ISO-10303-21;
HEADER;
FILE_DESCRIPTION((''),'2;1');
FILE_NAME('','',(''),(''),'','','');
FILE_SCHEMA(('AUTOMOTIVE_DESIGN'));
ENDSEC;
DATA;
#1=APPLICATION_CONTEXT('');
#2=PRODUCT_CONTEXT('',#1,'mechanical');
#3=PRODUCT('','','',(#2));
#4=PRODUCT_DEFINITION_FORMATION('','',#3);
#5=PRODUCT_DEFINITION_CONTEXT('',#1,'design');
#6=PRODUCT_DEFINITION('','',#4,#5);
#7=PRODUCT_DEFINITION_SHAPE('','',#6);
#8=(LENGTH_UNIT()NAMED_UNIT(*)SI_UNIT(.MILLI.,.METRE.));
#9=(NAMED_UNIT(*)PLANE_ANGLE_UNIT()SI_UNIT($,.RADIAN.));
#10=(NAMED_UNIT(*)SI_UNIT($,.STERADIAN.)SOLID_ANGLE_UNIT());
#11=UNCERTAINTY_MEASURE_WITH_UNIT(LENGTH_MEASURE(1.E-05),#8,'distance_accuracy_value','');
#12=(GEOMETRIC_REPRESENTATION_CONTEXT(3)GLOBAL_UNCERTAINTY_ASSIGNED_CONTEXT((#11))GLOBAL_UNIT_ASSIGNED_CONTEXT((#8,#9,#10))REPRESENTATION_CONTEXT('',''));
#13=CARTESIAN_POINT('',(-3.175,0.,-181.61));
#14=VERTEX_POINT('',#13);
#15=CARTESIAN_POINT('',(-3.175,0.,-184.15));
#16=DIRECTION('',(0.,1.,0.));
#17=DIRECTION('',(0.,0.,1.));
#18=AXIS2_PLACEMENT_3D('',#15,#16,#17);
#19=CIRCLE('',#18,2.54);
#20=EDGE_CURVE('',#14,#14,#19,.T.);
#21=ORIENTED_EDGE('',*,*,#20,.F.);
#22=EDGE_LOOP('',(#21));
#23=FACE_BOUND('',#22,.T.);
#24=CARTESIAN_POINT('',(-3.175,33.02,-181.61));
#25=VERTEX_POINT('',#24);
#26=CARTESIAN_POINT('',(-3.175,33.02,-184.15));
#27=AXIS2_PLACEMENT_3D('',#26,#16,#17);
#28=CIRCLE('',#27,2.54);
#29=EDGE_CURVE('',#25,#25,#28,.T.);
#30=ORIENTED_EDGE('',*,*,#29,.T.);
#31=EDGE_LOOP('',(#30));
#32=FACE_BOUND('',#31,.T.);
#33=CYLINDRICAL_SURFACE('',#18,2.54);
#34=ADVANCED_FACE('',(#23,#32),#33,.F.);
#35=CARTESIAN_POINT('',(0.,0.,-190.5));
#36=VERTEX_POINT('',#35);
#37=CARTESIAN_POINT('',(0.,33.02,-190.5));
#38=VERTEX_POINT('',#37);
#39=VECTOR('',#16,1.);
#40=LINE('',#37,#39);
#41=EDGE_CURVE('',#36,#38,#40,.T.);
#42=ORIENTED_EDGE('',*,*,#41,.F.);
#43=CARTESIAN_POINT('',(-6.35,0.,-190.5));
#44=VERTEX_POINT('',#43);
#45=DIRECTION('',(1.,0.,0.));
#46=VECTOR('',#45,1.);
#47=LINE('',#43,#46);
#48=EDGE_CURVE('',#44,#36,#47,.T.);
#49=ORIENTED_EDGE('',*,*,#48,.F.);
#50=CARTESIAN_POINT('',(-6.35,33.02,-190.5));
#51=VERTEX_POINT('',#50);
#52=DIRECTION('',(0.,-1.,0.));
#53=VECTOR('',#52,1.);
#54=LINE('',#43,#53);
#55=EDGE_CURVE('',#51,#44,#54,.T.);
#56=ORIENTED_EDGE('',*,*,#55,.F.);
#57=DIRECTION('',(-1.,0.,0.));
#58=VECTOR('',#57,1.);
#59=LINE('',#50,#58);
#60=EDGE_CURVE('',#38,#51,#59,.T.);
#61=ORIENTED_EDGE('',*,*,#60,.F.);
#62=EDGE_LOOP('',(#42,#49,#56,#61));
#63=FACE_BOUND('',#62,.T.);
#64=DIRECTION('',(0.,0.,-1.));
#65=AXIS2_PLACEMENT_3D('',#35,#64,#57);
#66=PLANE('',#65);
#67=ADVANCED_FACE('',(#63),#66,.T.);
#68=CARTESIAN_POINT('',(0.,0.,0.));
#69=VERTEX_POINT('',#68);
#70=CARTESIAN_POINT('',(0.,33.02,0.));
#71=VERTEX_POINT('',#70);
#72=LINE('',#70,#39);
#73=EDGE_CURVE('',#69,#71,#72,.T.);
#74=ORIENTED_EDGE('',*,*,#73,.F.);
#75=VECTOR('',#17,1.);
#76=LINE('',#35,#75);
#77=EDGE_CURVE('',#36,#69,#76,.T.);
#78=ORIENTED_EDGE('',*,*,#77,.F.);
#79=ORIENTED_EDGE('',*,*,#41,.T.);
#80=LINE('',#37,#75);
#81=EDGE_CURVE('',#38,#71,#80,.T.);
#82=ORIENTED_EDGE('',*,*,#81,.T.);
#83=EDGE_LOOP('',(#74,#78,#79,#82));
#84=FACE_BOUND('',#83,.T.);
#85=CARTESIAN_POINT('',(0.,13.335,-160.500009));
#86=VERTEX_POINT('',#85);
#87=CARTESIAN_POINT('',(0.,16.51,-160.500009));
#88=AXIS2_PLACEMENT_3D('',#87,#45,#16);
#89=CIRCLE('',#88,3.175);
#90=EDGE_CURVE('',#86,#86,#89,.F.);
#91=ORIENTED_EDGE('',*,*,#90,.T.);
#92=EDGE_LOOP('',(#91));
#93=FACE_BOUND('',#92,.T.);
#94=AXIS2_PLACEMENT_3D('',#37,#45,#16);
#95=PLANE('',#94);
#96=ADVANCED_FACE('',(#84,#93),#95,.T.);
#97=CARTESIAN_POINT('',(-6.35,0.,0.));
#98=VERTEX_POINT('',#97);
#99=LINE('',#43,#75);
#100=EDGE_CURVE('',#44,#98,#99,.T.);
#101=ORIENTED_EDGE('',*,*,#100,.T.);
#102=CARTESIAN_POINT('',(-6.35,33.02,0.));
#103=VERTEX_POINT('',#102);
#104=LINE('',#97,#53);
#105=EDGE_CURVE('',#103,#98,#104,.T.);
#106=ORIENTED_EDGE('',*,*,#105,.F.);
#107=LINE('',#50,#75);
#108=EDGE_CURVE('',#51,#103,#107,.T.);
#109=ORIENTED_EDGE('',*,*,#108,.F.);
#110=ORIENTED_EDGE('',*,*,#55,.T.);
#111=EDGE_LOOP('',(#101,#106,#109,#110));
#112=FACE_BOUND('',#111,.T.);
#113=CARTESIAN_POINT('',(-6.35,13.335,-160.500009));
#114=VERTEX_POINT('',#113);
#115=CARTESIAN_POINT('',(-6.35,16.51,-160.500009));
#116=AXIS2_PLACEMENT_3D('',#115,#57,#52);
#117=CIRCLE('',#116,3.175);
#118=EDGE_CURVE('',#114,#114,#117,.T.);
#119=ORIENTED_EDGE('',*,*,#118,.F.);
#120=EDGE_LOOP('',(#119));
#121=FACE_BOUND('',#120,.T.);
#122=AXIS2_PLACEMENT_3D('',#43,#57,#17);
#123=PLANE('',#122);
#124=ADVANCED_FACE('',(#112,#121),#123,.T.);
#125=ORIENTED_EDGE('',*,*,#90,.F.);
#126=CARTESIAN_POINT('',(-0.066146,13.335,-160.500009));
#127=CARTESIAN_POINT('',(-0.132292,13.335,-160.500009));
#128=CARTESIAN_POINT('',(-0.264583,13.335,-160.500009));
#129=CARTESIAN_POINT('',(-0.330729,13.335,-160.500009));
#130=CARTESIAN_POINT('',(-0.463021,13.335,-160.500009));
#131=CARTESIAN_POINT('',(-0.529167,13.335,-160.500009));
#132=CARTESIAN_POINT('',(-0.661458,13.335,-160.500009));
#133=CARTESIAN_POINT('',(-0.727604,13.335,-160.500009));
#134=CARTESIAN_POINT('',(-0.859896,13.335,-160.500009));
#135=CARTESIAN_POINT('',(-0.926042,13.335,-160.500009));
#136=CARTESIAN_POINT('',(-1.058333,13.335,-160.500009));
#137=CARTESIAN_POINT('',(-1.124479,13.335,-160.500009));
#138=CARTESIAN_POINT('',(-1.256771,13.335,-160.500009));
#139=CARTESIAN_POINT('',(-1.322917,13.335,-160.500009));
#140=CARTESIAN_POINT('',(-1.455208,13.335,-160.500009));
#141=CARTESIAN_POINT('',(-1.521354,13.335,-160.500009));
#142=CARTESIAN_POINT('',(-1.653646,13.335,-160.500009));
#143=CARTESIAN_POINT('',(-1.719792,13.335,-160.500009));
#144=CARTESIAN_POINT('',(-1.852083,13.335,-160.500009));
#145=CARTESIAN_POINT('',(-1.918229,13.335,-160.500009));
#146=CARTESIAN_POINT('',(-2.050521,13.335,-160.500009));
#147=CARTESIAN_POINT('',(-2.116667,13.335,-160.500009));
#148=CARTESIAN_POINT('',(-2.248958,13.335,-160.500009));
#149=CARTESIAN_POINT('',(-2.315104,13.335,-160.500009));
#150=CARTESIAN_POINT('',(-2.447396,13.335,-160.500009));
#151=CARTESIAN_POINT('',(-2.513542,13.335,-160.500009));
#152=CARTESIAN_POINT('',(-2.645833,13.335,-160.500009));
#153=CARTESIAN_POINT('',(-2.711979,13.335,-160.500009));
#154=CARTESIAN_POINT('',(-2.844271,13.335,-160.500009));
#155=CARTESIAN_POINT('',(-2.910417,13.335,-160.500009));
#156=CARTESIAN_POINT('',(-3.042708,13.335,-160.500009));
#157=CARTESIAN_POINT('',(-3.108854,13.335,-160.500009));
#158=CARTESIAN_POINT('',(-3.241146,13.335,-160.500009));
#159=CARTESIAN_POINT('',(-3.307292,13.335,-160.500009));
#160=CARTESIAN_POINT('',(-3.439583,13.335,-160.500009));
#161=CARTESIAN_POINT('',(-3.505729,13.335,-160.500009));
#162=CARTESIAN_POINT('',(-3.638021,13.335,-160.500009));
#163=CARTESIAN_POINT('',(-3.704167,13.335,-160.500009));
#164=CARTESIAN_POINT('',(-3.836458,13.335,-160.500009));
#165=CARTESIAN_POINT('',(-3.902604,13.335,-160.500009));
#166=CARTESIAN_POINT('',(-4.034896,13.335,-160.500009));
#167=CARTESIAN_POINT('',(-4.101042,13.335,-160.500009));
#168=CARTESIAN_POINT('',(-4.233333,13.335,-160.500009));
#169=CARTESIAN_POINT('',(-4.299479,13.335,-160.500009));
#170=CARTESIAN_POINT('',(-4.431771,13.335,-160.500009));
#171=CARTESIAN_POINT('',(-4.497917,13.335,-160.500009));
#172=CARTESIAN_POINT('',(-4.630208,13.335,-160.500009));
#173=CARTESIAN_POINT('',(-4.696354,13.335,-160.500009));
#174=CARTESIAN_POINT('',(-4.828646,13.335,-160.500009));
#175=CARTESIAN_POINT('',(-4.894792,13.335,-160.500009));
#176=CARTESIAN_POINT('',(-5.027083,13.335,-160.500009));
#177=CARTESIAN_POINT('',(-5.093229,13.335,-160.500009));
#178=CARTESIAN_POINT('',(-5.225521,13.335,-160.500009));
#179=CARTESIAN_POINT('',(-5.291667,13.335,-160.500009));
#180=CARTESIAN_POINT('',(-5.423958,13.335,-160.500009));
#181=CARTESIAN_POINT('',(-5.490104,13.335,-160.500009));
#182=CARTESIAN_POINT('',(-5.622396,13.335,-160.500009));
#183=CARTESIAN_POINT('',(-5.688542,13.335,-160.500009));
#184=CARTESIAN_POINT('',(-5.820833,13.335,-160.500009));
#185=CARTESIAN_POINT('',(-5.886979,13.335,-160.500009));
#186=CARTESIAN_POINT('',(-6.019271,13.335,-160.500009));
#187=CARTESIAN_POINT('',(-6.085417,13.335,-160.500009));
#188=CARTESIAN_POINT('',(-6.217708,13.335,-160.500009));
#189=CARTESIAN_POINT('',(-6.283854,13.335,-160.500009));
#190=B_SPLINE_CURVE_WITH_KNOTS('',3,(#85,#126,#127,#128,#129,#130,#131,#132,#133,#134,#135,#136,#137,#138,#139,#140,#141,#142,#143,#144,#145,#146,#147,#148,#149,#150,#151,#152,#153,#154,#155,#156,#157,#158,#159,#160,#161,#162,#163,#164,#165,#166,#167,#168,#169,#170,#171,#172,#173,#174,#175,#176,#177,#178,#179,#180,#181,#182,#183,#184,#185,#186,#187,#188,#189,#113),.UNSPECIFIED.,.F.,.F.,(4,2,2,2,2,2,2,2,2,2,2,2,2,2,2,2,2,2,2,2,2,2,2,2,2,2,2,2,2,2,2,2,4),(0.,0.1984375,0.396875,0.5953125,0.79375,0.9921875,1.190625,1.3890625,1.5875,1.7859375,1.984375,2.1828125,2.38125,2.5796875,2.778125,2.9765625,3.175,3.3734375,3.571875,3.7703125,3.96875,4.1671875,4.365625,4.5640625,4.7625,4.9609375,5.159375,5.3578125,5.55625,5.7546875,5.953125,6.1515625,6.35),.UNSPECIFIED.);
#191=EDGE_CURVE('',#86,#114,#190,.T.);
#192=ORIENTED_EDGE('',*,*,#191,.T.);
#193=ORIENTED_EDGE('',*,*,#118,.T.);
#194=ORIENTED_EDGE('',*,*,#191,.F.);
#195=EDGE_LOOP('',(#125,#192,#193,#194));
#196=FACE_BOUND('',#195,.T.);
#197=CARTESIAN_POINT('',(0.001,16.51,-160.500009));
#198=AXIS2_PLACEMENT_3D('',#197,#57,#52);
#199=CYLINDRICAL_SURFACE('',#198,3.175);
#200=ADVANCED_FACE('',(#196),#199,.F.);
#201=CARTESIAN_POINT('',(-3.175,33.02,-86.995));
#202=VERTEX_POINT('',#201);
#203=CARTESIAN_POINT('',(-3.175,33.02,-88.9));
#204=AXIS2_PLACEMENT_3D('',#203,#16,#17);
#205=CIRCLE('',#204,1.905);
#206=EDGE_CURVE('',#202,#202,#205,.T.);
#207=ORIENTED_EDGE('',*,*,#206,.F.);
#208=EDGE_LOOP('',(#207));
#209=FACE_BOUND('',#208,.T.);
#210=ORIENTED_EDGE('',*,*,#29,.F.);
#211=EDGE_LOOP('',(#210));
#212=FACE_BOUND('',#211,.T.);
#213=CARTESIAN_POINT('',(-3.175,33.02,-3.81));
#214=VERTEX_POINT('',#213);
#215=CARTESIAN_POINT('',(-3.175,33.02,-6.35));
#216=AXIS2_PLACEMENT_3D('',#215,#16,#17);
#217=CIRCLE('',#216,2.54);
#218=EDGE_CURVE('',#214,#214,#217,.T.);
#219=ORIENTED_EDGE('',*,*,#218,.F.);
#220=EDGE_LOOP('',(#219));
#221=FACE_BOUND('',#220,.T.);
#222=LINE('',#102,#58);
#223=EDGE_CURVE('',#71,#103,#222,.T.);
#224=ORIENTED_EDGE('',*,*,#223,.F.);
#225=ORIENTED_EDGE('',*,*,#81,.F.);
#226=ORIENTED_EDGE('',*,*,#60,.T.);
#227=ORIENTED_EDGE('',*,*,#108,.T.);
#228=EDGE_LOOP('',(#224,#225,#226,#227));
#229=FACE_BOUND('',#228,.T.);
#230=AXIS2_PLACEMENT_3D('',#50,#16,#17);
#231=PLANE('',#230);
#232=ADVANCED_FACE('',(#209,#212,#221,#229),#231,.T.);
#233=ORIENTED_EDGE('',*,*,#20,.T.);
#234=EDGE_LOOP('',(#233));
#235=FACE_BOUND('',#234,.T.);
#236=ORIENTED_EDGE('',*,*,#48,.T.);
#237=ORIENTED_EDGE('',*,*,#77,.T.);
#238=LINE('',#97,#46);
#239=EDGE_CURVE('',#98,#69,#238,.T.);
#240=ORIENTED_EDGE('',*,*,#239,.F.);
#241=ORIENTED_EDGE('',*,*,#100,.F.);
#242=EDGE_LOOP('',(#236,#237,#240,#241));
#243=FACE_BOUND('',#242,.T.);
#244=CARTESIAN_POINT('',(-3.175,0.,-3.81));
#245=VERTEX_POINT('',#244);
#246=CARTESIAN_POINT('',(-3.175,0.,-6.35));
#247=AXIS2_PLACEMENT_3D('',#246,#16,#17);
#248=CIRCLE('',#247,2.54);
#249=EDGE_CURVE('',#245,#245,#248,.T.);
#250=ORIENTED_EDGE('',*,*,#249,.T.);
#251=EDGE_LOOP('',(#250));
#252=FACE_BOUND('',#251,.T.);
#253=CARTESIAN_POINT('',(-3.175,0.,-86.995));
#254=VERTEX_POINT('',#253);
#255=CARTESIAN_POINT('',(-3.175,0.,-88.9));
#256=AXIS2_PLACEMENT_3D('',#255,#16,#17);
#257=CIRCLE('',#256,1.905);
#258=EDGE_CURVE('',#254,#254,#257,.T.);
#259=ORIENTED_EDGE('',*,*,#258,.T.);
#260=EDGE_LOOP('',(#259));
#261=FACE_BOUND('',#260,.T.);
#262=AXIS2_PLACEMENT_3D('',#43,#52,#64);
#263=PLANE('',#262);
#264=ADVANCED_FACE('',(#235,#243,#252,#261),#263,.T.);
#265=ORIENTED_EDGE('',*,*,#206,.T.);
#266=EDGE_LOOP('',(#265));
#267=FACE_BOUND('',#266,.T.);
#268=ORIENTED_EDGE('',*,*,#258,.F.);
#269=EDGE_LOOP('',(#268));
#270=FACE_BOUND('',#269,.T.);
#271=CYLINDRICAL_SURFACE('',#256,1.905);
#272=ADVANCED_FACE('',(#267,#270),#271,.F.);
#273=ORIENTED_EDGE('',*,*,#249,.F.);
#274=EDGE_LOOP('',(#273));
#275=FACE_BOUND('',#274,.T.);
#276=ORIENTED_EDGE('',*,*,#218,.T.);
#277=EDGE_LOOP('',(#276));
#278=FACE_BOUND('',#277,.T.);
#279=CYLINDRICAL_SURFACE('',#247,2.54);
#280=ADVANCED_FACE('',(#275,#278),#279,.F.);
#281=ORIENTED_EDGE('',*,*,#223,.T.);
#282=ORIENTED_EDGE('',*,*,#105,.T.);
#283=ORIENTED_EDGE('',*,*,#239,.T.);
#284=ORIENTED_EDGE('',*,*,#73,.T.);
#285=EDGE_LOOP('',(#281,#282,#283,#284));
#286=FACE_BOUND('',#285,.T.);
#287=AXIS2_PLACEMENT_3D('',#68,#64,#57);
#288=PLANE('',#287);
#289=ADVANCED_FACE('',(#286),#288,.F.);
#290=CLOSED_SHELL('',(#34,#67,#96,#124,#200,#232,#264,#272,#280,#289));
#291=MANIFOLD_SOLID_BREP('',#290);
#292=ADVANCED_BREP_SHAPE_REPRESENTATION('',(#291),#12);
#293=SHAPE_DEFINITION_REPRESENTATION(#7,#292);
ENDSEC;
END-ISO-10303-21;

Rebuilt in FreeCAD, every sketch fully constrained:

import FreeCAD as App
import Part
import Sketcher
from FreeCAD import Vector
Q = App.Units.Quantity


def add_polygon(sketch, points):
    """Adds a closed chain of lines whose ends are joined by coincident constraints."""
    first, n = sketch.GeometryCount, len(points)
    for a, b in zip(points, points[1:] + points[:1]):
        sketch.addGeometry(Part.LineSegment(App.Vector(*a, 0), App.Vector(*b, 0)), False)
    for i in range(n):
        sketch.addConstraint(Sketcher.Constraint("Coincident", first + i, 2, first + (i + 1) % n, 1))

doc = App.newDocument("Part")
body = doc.addObject("PartDesign::Body", "Body")

# Sketch on XY plane
sketch1 = body.newObject("Sketcher::SketchObject", "Sketch")
sketch1.AttachmentSupport = (doc.getObject("XY_Plane"), [""])
sketch1.MapMode = "FlatFace"
add_polygon(sketch1, [(-6, 33), (-6, 0), (0, 0), (0, 33)])  # lines 0-3
sketch1.addConstraint(Sketcher.Constraint("Vertical", 0))
sketch1.addConstraint(Sketcher.Constraint("Horizontal", 1))
sketch1.addConstraint(Sketcher.Constraint("Vertical", 2))
sketch1.addConstraint(Sketcher.Constraint("Horizontal", 3))
sketch1.addConstraint(Sketcher.Constraint("Coincident", 1, 2, -1, 1))
sketch1.addConstraint(Sketcher.Constraint("DistanceY", 0, 2, 0, 1, Q("1.3 in")))
sketch1.addConstraint(Sketcher.Constraint("DistanceX", 1, 1, 1, 2, Q("0.25 in")))
pad1 = body.newObject("PartDesign::Pad", "Pad")
pad1.Profile = sketch1
pad1.Length = Q("7.5 in")
pad1.Reversed = True

# Sketch on YZ plane
sketch2 = body.newObject("Sketcher::SketchObject", "Sketch001")
sketch2.AttachmentSupport = (doc.getObject("YZ_Plane"), [""])
sketch2.MapMode = "FlatFace"
sketch2.AttachmentOffset = App.Placement(Vector(0, 0, -0.25 * 25.4), App.Rotation())
sketch2.addGeometry(Part.Circle(Vector(16.5, -160.5, 0), Vector(0, 0, 1), 3.2), False)
sketch2.addConstraint(Sketcher.Constraint("Diameter", 0, Q("0.25 in")))
sketch2.addConstraint(Sketcher.Constraint("DistanceX", -1, 1, 0, 3, Q("0.65 in")))
sketch2.addConstraint(Sketcher.Constraint("DistanceY", 0, 3, -1, 1, 160.500009))
pocket1 = body.newObject("PartDesign::Pocket", "Pocket")
pocket1.Profile = sketch2
pocket1.Type = "UpToFirst"
pocket1.Reversed = True

# Sketch on XZ plane
sketch3 = body.newObject("Sketcher::SketchObject", "Sketch002")
sketch3.AttachmentSupport = (doc.getObject("XZ_Plane"), [""])
sketch3.MapMode = "FlatFace"
sketch3.AttachmentOffset = App.Placement(Vector(0, 0, -1.3 * 25.4), App.Rotation())
sketch3.addGeometry(Part.Circle(Vector(-3.2, -6.3, 0), Vector(0, 0, 1), 2.5), False)
sketch3.addGeometry(Part.Circle(Vector(-3.2, -184.2, 0), Vector(0, 0, 1), 2.5), False)
sketch3.addGeometry(Part.Circle(Vector(-3.2, -88.9, 0), Vector(0, 0, 1), 1.9), False)
sketch3.addConstraint(Sketcher.Constraint("Equal", 0, 1))
sketch3.addConstraint(Sketcher.Constraint("Vertical", 0, 3, 1, 3))
sketch3.addConstraint(Sketcher.Constraint("Vertical", 1, 3, 2, 3))
sketch3.addConstraint(Sketcher.Constraint("Diameter", 0, Q("0.2 in")))
sketch3.addConstraint(Sketcher.Constraint("Diameter", 2, Q("0.15 in")))
sketch3.addConstraint(Sketcher.Constraint("DistanceY", 1, 3, 0, 3, Q("7 in")))
sketch3.addConstraint(Sketcher.Constraint("DistanceY", 2, 3, -1, 1, Q("3.5 in")))
sketch3.addConstraint(Sketcher.Constraint("DistanceY", 0, 3, -1, 1, Q("0.25 in")))
sketch3.addConstraint(Sketcher.Constraint("DistanceX", 0, 3, -1, 1, Q("0.125 in")))
pocket2 = body.newObject("PartDesign::Pocket", "Pocket001")
pocket2.Profile = sketch3
pocket2.Type = "ThroughAll"
pocket2.Reversed = True

doc.recompute()
